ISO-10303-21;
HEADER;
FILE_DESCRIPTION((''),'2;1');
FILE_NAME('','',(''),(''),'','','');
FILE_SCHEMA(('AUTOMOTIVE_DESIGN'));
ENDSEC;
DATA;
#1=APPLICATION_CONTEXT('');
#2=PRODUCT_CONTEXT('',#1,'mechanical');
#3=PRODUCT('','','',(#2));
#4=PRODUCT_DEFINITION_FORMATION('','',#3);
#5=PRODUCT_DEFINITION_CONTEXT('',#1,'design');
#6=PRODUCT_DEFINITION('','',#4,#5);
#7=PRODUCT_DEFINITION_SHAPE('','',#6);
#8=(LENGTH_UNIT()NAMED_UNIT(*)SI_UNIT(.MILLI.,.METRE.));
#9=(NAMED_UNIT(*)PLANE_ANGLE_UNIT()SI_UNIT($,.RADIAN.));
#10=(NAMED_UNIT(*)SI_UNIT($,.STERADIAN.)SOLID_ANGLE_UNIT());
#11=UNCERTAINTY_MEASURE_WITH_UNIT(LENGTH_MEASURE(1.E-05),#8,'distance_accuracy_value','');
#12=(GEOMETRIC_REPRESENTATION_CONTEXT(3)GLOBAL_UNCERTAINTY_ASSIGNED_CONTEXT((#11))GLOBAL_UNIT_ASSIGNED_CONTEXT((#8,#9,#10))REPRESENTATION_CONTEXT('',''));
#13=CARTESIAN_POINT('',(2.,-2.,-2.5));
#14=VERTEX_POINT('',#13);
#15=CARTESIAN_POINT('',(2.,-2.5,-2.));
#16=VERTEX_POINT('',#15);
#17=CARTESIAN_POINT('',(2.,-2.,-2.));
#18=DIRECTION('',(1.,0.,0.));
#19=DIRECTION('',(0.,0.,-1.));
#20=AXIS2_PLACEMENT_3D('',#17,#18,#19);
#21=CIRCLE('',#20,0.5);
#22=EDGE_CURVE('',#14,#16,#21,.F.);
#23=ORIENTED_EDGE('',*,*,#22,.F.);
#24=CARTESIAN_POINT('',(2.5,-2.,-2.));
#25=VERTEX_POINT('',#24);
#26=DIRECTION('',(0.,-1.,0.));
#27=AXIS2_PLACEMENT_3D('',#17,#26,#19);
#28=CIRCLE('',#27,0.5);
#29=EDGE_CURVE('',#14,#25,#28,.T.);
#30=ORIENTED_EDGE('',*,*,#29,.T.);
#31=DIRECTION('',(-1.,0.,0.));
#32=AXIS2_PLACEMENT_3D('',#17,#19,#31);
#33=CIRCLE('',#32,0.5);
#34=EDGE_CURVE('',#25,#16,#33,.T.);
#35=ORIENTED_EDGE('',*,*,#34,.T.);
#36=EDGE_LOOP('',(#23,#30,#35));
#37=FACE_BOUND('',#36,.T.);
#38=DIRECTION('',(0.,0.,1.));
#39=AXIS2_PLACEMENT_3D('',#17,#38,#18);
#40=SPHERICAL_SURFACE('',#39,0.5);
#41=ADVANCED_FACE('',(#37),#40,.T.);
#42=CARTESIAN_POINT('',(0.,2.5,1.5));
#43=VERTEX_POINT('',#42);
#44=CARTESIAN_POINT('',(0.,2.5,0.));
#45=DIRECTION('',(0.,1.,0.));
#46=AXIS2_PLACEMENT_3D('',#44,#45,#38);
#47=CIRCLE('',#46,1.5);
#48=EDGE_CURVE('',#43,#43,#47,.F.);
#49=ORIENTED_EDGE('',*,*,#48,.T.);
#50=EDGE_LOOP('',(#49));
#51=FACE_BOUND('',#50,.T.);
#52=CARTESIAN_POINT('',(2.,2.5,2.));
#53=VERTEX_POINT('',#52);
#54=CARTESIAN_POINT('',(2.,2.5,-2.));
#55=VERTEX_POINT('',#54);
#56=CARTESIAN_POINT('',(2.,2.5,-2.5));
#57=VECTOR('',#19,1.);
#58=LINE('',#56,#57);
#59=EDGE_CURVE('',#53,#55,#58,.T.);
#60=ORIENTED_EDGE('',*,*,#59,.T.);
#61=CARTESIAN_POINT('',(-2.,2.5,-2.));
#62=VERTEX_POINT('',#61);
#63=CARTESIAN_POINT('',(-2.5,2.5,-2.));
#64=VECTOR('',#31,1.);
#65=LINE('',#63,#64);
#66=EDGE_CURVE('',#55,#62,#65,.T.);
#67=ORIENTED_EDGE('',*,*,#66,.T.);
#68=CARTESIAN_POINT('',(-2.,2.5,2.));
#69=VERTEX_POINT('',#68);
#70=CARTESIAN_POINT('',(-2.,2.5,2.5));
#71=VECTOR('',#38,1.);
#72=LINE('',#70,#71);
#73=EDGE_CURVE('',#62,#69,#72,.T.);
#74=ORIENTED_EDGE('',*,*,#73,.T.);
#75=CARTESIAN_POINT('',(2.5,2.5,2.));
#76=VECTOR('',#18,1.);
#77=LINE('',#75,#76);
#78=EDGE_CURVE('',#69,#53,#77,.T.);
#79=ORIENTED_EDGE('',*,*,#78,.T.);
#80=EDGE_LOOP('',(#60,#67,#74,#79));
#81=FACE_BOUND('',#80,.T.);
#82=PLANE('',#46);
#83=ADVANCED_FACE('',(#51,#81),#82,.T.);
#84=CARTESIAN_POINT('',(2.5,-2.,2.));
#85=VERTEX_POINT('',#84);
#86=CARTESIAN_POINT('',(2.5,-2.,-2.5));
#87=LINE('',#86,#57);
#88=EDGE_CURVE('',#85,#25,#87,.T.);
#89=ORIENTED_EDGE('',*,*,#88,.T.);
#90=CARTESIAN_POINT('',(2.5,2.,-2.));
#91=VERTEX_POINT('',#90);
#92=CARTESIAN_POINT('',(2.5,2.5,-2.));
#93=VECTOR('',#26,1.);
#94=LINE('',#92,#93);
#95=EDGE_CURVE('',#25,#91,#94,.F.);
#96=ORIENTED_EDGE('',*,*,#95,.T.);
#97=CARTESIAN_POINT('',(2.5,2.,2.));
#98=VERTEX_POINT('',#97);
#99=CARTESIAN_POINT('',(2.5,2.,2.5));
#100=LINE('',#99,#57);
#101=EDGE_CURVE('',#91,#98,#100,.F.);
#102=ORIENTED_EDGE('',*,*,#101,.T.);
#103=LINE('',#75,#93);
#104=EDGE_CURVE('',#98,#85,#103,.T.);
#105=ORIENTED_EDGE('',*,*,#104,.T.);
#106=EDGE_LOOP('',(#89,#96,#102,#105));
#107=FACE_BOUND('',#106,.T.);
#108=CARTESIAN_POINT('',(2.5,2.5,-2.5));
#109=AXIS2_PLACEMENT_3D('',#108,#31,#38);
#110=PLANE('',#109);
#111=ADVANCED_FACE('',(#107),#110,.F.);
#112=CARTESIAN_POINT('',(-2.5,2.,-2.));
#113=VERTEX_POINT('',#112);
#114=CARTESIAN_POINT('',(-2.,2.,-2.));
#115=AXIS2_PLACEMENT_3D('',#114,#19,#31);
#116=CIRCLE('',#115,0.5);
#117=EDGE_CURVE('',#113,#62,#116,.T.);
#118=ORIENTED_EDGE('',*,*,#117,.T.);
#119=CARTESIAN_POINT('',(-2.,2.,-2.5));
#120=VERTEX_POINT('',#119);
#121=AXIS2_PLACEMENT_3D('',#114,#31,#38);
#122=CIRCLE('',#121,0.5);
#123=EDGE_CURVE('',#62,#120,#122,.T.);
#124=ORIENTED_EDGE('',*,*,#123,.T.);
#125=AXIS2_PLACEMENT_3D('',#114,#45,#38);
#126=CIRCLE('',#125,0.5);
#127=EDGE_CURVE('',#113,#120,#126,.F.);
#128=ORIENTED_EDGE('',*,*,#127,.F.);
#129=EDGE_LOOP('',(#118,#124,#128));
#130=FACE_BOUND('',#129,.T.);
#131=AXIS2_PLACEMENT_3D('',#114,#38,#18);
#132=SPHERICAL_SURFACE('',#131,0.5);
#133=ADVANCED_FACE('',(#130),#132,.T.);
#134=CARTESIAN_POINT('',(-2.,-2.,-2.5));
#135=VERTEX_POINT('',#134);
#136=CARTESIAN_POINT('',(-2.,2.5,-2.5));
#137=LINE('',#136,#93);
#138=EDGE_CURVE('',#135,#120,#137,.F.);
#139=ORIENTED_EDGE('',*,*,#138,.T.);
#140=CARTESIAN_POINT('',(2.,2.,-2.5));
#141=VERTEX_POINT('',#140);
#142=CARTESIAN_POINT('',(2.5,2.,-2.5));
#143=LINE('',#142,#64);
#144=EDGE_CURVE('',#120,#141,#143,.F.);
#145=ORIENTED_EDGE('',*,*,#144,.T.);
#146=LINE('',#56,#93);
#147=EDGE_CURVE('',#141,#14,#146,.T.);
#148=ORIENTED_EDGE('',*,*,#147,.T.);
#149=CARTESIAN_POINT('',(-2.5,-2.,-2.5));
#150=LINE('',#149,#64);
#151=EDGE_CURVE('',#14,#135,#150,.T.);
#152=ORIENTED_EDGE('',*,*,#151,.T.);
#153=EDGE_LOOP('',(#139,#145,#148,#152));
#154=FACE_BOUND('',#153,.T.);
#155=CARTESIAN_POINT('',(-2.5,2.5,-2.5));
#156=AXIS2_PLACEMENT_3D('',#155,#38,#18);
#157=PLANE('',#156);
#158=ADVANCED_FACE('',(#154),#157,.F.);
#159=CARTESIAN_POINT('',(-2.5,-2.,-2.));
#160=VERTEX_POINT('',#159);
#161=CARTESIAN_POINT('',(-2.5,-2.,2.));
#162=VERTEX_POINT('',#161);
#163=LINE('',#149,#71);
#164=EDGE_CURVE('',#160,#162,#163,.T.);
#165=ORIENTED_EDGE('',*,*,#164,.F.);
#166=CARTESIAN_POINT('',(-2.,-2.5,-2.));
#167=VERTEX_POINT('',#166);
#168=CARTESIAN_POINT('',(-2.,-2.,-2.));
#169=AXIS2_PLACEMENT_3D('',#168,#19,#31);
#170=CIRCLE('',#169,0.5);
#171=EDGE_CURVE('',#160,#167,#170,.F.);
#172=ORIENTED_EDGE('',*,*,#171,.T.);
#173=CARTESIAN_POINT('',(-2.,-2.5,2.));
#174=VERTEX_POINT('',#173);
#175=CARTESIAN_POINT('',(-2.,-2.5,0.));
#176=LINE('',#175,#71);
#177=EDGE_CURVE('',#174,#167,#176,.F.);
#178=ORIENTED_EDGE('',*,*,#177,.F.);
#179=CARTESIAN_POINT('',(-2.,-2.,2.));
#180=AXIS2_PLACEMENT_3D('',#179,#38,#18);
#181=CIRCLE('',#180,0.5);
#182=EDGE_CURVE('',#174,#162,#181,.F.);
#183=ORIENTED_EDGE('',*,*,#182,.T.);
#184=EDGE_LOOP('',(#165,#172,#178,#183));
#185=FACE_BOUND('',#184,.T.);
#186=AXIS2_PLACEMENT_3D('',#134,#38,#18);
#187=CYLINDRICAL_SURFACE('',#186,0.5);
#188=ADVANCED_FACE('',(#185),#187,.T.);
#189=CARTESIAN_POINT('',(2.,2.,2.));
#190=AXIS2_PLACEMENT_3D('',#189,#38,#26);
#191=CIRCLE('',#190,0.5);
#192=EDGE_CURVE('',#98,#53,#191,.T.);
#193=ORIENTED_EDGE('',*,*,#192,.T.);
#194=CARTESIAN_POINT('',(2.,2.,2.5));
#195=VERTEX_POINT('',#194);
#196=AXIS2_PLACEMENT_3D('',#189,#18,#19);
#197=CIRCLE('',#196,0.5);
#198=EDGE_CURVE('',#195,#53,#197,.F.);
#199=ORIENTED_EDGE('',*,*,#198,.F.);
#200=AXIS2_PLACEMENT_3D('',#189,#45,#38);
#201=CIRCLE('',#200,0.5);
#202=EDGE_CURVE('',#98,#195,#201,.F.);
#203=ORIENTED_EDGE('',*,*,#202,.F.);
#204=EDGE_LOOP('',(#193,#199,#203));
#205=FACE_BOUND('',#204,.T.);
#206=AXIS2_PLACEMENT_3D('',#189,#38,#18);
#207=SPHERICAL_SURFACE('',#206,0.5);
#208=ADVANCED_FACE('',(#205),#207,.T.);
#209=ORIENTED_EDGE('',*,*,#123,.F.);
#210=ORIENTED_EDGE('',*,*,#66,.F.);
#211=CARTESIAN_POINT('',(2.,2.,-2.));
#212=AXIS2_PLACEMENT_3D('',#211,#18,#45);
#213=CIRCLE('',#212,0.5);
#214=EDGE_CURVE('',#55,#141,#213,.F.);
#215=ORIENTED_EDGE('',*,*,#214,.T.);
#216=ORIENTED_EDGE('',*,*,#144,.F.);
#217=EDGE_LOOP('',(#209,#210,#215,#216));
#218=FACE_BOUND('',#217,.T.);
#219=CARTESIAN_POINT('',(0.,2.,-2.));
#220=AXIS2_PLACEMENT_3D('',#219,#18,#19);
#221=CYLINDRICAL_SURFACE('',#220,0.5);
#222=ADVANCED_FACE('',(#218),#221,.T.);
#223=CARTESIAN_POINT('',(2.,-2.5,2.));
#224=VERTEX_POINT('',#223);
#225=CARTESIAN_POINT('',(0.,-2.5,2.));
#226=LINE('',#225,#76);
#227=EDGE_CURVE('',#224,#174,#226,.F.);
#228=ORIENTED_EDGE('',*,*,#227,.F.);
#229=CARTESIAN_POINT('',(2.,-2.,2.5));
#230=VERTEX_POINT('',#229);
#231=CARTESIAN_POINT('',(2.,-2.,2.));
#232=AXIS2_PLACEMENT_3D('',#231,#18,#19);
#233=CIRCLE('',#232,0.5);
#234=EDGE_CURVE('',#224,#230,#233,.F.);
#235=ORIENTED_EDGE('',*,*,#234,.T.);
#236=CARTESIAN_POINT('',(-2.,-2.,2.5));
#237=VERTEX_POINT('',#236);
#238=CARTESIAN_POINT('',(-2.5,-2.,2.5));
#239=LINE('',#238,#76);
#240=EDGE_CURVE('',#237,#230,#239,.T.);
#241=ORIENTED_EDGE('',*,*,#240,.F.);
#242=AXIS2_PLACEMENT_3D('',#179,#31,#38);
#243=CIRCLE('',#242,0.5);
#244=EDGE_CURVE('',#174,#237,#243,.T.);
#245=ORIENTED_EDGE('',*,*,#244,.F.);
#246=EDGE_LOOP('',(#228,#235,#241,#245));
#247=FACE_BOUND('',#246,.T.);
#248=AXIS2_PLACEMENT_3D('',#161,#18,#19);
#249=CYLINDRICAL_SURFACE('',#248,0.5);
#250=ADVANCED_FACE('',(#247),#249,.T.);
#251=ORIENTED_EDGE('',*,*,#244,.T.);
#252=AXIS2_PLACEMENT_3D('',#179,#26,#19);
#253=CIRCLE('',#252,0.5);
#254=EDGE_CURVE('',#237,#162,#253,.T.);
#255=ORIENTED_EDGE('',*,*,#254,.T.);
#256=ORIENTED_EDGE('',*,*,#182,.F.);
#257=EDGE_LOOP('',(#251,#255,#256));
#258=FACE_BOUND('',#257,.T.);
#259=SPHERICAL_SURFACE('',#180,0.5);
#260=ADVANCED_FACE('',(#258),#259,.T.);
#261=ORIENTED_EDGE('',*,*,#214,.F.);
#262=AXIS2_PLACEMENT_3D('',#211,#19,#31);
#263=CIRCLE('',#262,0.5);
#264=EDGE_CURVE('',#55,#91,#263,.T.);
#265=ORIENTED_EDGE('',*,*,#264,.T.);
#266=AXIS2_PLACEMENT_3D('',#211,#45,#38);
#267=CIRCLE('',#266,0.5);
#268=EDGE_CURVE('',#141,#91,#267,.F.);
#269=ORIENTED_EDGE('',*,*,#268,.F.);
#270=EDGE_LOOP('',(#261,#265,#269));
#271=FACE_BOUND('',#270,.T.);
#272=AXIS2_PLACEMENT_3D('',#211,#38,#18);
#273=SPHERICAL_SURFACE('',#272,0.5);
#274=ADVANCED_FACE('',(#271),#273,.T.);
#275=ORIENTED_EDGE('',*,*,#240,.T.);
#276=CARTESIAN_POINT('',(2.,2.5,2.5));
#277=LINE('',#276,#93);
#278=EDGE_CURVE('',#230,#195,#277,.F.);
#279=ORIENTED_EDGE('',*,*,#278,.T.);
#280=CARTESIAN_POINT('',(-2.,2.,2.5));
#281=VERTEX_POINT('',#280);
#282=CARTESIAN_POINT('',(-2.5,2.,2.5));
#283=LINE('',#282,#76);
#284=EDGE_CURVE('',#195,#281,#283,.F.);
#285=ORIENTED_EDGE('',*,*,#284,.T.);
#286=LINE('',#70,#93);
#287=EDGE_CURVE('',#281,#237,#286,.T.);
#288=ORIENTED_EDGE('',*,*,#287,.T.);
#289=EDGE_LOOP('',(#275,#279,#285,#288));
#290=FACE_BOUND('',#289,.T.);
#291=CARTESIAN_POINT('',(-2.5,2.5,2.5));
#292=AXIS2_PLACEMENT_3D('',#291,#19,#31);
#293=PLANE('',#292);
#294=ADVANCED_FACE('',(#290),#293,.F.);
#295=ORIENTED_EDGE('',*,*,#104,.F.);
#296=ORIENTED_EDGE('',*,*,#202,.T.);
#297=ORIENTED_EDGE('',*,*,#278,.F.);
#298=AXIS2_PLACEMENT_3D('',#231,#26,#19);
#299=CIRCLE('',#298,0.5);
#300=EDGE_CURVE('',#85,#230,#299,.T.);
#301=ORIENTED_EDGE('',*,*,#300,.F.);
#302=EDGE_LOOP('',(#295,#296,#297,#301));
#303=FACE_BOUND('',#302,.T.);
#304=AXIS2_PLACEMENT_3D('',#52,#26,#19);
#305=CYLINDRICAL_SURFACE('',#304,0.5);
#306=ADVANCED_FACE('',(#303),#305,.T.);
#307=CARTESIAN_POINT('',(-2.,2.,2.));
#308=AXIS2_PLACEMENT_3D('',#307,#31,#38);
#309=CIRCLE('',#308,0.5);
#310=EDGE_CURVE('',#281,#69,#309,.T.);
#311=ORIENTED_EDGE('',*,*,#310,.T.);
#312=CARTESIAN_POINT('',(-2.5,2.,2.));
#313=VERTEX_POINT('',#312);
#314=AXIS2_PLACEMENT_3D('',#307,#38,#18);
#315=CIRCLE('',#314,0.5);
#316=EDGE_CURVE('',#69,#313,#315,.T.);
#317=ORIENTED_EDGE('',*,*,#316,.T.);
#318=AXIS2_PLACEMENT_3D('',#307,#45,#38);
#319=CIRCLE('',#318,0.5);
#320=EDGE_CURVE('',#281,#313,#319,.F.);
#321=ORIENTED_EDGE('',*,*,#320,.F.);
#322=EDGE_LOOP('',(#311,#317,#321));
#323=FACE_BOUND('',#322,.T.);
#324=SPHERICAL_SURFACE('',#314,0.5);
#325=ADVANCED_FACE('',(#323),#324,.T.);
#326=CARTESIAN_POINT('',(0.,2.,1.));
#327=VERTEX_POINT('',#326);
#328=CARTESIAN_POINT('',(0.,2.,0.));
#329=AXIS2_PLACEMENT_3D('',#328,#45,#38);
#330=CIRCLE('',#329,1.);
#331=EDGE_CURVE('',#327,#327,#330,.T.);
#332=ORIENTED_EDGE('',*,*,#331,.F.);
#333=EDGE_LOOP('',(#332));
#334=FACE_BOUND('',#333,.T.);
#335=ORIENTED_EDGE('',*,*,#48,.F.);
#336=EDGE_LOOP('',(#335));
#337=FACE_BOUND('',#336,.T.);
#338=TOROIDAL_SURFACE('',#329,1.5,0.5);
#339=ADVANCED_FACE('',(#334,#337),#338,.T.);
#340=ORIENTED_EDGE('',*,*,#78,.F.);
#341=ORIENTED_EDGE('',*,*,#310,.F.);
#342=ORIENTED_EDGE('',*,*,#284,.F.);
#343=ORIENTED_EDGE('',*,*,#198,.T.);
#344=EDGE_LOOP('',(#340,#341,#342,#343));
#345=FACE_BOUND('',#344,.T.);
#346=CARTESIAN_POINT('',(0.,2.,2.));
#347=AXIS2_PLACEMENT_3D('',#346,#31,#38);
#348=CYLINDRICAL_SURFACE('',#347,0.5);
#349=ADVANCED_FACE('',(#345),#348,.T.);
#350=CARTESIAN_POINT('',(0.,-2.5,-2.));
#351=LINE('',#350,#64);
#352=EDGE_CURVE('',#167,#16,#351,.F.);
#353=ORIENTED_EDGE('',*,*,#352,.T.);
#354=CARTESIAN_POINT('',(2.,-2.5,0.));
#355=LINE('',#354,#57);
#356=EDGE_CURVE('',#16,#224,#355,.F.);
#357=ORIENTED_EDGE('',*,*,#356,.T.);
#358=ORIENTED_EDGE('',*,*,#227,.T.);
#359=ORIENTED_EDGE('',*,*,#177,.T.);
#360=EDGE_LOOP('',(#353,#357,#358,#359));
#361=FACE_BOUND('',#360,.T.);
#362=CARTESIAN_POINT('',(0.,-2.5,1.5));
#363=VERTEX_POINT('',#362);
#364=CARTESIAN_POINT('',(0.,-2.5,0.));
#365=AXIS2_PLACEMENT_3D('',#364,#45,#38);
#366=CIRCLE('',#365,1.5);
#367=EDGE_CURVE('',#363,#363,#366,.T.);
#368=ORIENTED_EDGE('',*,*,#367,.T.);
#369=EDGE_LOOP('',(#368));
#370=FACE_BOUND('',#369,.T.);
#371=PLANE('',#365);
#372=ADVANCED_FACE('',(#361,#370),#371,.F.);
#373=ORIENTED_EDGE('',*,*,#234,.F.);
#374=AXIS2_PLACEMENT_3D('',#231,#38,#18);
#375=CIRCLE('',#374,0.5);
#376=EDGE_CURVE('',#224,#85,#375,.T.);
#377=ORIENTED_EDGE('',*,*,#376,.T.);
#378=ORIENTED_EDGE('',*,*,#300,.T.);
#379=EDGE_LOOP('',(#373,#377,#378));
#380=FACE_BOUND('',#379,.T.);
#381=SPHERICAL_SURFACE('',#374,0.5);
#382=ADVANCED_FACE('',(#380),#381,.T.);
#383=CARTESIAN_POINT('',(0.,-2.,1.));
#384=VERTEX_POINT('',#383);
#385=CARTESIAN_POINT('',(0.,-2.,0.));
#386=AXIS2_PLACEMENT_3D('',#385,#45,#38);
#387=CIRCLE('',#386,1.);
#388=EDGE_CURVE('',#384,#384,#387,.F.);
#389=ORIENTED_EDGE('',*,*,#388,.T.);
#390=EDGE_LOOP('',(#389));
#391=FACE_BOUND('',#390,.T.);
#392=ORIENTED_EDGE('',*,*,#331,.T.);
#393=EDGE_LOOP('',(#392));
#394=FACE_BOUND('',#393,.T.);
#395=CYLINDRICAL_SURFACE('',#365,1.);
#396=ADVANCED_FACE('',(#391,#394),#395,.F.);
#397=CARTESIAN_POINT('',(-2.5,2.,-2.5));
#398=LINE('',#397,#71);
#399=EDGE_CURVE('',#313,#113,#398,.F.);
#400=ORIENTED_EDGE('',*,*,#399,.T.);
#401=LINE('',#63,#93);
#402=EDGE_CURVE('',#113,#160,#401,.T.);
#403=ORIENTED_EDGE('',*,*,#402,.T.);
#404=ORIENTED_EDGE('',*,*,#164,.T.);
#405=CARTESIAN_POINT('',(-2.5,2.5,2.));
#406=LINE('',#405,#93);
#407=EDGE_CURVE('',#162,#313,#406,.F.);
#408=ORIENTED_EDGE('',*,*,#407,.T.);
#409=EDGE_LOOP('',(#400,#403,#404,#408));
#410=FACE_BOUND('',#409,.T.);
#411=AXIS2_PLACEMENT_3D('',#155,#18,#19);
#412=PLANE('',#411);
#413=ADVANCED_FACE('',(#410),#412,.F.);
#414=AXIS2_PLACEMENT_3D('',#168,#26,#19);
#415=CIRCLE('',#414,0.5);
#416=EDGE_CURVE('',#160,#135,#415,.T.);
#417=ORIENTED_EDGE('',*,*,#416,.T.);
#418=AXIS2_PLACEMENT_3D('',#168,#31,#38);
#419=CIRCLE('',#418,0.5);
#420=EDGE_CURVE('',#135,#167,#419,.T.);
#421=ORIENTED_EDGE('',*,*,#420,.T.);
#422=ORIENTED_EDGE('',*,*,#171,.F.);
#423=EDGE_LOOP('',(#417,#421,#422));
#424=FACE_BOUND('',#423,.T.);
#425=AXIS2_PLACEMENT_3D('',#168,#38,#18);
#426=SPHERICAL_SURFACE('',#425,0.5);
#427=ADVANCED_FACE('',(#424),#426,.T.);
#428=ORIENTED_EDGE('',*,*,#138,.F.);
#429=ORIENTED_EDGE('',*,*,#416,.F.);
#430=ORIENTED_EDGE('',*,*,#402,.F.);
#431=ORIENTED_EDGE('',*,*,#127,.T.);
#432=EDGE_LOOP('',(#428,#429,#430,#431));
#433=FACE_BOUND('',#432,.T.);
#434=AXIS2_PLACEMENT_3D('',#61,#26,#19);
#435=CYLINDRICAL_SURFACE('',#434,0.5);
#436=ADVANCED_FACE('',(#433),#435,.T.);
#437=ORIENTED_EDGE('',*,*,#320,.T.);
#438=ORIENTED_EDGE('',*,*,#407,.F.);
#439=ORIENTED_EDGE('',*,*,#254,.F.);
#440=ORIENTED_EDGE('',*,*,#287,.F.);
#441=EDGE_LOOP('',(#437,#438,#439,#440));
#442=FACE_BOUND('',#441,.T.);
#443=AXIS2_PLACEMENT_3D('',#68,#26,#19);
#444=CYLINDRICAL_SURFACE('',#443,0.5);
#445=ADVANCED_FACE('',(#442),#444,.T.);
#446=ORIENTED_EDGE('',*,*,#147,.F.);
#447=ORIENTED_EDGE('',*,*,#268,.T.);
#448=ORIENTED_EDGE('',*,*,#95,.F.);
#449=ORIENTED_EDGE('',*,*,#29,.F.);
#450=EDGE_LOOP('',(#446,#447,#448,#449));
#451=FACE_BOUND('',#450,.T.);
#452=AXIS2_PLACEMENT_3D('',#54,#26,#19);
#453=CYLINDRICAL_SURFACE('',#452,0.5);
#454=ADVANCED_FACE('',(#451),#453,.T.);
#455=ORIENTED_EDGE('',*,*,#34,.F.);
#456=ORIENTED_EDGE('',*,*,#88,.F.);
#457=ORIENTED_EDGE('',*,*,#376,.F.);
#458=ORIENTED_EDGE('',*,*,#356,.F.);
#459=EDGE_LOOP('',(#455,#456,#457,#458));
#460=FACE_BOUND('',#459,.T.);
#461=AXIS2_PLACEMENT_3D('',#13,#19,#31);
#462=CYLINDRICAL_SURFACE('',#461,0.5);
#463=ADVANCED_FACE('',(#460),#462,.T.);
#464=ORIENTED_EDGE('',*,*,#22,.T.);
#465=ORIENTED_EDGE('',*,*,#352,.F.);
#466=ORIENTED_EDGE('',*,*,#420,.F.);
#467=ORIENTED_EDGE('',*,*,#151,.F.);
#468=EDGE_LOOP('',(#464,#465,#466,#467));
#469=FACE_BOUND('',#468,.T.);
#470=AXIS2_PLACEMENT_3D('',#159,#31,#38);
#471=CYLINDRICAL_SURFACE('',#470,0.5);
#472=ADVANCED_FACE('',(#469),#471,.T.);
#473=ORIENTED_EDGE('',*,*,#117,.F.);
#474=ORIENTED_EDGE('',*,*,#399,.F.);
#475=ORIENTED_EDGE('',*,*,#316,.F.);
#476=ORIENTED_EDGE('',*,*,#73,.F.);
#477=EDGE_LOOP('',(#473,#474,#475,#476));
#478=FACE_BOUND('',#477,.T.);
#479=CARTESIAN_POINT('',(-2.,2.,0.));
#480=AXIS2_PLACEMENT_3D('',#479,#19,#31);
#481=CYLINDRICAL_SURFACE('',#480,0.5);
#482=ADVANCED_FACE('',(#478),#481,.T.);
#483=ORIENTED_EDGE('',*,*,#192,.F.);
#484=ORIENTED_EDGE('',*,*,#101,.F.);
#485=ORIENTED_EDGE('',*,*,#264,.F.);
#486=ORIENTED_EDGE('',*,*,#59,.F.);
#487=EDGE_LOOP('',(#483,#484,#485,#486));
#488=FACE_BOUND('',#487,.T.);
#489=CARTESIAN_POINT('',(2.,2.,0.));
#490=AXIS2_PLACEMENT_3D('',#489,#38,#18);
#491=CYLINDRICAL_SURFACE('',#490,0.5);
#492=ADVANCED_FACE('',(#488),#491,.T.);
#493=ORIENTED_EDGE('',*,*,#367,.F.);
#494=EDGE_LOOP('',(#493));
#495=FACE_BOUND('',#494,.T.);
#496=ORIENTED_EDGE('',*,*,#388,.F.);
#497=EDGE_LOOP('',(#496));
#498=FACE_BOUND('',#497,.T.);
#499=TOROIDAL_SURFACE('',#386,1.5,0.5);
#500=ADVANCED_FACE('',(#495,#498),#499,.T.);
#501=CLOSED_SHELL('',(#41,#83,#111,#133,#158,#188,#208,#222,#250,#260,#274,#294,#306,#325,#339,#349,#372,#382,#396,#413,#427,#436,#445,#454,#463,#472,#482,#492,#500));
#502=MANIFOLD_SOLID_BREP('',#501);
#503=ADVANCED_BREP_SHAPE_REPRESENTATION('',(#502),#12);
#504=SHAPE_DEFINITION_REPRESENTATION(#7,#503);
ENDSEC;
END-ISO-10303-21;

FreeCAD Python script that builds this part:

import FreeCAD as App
import Part
import Sketcher


def add_polygon(sketch, points):
    """Adds a closed chain of lines whose ends are joined by coincident constraints."""
    first, n = sketch.GeometryCount, len(points)
    for a, b in zip(points, points[1:] + points[:1]):
        sketch.addGeometry(Part.LineSegment(App.Vector(*a, 0), App.Vector(*b, 0)), False)
    for i in range(n):
        sketch.addConstraint(Sketcher.Constraint("Coincident", first + i, 2, first + (i + 1) % n, 1))

doc = App.newDocument("Part")
params = doc.addObject("Spreadsheet::Sheet", "Params")
for row, (alias, value) in enumerate([
    ("sketch1_width", "5 mm"),
    ("pad1_length", "5 mm"),
    ("sketch2_diameter", "2 mm"),
    ("fillet_radius", "0.5 mm"),
], start=1):
    params.set(f"A{row}", alias)
    params.set(f"B{row}", "=" + value)
    params.setAlias(f"B{row}", alias)

body = doc.addObject("PartDesign::Body", "Body")

# Sketch on XZ plane
sketch1 = body.newObject("Sketcher::SketchObject", "Sketch")
sketch1.AttachmentSupport = (doc.getObject("XZ_Plane"), [""])
sketch1.MapMode = "FlatFace"
add_polygon(sketch1, [(-2.5, -2.5), (-2.5, 2.5), (2.5, 2.5), (2.5, -2.5)])  # lines 0-3
sketch1.addConstraint(Sketcher.Constraint("Vertical", 0))
sketch1.addConstraint(Sketcher.Constraint("Horizontal", 1))
sketch1.addConstraint(Sketcher.Constraint("Vertical", 2))
sketch1.addConstraint(Sketcher.Constraint("Horizontal", 3))
sketch1.addConstraint(Sketcher.Constraint("Symmetric", 0, 2, 2, 2, -1, 1))
sketch1.addConstraint(Sketcher.Constraint("Equal", 3, 0))
sketch1.addConstraint(Sketcher.Constraint("DistanceX", 1, 1, 1, 2, 5.0))
sketch1.setExpression("Constraints[10]", "Params.sketch1_width")
pad1 = body.newObject("PartDesign::Pad", "Pad")
pad1.Profile = sketch1
pad1.setExpression("Length", "Params.pad1_length")
pad1.Midplane = True

# Sketch on XZ plane
sketch2 = body.newObject("Sketcher::SketchObject", "Sketch001")
sketch2.AttachmentSupport = (doc.getObject("XZ_Plane"), [""])
sketch2.MapMode = "FlatFace"
sketch2.AttachmentOffset = App.Placement(App.Vector(0, 0, -2.5), App.Rotation())
sketch2.addGeometry(Part.Circle(App.Vector(0, 0, 0), App.Vector(0, 0, 1), 1), False)
sketch2.addConstraint(Sketcher.Constraint("Coincident", 0, 3, -1, 1))
sketch2.addConstraint(Sketcher.Constraint("Diameter", 0, 2.0))
sketch2.setExpression("Constraints[1]", "Params.sketch2_diameter")
pocket1 = body.newObject("PartDesign::Pocket", "Pocket")
pocket1.Profile = sketch2
pocket1.Type = "ThroughAll"
pocket1.Reversed = True
doc.recompute()

fillet = body.newObject("PartDesign::Fillet", "Fillet")
fillet.Base = (pocket1, ["Edge1"])
fillet.UseAllEdges = True
fillet.setExpression("Radius", "Params.fillet_radius")

doc.recompute()
